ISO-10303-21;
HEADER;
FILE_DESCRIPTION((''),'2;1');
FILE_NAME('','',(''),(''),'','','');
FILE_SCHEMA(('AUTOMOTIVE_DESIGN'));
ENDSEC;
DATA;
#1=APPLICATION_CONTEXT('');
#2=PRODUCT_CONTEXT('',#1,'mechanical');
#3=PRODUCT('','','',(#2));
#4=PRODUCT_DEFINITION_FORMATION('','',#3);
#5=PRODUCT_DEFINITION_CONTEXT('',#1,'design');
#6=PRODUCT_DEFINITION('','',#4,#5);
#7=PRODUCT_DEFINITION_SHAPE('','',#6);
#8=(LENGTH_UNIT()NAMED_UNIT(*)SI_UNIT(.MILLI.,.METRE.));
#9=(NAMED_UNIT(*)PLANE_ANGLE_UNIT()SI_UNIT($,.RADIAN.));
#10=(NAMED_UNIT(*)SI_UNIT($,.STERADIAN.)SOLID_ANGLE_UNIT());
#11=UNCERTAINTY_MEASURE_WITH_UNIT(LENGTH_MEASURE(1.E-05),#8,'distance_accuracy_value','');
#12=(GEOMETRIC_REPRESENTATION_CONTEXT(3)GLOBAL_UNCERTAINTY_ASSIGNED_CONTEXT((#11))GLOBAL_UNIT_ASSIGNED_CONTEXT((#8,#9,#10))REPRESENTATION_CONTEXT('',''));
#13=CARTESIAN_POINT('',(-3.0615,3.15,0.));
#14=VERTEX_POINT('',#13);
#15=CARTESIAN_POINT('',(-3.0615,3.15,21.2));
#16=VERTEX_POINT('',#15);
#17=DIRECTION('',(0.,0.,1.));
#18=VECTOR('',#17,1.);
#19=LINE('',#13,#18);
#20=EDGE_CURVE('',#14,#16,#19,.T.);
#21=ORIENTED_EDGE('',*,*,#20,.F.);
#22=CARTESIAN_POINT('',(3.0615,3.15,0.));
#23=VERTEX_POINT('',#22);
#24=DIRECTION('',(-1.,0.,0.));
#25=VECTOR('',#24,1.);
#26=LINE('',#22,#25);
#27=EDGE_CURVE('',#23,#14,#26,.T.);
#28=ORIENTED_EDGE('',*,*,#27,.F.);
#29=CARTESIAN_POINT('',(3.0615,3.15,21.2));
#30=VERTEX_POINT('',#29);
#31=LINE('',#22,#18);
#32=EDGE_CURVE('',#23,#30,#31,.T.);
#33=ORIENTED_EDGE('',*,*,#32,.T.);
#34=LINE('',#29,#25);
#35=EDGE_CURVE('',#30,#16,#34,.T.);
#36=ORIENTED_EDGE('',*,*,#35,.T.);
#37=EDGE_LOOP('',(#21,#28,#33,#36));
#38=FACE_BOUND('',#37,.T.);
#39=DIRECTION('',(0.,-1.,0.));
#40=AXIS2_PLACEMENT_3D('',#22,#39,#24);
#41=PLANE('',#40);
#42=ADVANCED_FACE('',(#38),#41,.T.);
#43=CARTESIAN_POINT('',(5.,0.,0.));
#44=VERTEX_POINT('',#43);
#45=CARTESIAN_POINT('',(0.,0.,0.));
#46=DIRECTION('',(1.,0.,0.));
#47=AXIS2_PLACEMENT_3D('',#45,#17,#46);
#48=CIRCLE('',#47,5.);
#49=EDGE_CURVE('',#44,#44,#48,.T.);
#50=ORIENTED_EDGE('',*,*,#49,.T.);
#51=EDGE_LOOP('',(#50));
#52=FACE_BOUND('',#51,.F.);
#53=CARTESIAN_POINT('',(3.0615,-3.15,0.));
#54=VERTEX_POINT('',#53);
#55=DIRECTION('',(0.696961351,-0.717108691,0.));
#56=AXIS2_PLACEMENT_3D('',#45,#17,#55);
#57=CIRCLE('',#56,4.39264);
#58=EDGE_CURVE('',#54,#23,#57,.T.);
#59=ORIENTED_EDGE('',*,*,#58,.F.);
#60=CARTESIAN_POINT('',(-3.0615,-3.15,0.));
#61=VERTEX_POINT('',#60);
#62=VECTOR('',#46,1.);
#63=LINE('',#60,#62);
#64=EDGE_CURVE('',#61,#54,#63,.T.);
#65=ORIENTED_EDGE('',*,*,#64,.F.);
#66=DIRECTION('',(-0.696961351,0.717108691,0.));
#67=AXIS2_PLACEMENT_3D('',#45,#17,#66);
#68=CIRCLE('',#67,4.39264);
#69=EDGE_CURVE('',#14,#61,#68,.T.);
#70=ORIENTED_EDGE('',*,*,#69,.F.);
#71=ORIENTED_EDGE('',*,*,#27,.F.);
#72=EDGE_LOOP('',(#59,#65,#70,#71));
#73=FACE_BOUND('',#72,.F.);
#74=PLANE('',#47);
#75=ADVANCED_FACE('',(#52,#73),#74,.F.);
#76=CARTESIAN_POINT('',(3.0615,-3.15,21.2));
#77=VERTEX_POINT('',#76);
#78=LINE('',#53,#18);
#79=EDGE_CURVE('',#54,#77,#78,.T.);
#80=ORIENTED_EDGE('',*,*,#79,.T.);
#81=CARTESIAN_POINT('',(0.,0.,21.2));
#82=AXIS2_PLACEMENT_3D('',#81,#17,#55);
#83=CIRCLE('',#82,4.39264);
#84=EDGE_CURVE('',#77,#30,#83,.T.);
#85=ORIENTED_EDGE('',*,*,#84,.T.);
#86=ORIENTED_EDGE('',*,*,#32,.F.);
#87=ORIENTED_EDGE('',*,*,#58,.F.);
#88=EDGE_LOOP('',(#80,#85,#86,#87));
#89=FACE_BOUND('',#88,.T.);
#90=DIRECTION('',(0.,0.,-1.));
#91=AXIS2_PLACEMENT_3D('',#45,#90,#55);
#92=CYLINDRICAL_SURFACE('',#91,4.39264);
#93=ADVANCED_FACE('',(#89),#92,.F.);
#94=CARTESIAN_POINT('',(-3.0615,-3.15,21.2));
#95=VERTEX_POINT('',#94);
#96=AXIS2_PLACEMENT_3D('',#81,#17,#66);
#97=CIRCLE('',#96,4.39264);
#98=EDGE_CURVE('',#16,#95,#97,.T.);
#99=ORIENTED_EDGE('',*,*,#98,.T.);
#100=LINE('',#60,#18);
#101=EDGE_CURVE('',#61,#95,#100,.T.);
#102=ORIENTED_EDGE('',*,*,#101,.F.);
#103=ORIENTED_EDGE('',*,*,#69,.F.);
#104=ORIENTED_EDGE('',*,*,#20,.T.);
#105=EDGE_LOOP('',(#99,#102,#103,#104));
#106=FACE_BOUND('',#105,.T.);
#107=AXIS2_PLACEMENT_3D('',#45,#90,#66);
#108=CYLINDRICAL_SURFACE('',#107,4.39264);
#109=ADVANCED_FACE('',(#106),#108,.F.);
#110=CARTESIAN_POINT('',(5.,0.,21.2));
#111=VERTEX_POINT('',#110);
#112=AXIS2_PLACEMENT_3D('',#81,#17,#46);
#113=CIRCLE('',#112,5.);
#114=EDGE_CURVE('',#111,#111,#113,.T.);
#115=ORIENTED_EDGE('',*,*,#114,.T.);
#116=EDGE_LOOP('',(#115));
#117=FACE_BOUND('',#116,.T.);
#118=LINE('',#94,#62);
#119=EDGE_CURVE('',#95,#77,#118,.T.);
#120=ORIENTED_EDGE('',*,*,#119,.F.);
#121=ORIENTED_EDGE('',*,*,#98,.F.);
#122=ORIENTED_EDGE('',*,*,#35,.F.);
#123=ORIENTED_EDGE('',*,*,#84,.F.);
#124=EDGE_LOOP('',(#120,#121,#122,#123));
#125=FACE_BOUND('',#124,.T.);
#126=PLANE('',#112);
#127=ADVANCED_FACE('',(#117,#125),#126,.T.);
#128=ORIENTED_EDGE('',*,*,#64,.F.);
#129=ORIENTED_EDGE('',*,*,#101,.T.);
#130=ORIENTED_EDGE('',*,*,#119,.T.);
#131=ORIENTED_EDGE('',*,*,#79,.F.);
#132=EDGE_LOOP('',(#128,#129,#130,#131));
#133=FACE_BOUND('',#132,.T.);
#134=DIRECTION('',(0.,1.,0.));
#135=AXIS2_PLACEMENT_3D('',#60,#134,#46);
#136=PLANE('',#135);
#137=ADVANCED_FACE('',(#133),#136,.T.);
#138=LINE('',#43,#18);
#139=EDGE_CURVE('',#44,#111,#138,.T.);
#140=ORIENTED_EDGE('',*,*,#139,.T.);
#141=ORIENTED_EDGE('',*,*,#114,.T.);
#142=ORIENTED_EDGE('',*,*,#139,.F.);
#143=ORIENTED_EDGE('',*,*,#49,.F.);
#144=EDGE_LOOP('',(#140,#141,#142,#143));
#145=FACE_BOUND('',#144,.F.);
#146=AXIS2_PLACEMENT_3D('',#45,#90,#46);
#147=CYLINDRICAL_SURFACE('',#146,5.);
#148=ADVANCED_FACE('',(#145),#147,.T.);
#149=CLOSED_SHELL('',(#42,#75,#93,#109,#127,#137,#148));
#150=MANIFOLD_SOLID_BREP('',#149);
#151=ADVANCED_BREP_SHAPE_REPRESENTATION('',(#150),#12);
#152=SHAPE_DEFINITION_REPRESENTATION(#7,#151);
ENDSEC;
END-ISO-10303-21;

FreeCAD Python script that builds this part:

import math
import FreeCAD as App
import Part
import Sketcher
from FreeCAD import Vector
Q = App.Units.Quantity

doc = App.newDocument("Part")
body = doc.addObject("PartDesign::Body", "Body")

sketch1 = doc.addObject("Sketcher::SketchObject", "Sketch")
body.addObject(sketch1)
sketch1.AttachmentSupport = (doc.XY_Plane, [""])
sketch1.MapMode = "FlatFace"
sketch1.addGeometry([
    Part.Circle(Vector(0, 0, 0), Vector(0, 0, 1), 5),
    Part.LineSegment(Vector(3.1, -3.1, 0), Vector(-3.1, -3.1, 0)),
    Part.ArcOfCircle(Part.Circle(Vector(0, 0, 0), Vector(0, 0, 1), 4.4), math.radians(134), math.radians(226)),
    Part.LineSegment(Vector(-3.1, 3.1, 0), Vector(3.1, 3.1, 0)),
    Part.ArcOfCircle(Part.Circle(Vector(0, 0, 0), Vector(0, 0, 1), 4.4), math.radians(-46), math.radians(46)),
], False)
sketch1.addConstraint([
    Sketcher.Constraint("Coincident", 1, 2, 2, 2),
    Sketcher.Constraint("Coincident", 2, 1, 3, 1),
    Sketcher.Constraint("Coincident", 3, 2, 4, 2),
    Sketcher.Constraint("Coincident", 4, 1, 1, 1),
    Sketcher.Constraint("Horizontal", 1),
    Sketcher.Constraint("Horizontal", 3),
    Sketcher.Constraint("Coincident", 0, 3, -1, 1),
    Sketcher.Constraint("Coincident", 2, 3, -1, 1),
    Sketcher.Constraint("Coincident", 4, 3, -1, 1),
    Sketcher.Constraint("Equal", 2, 4),
    Sketcher.Constraint("Vertical", 1, 2, 2, 1),
    Sketcher.Constraint("Diameter", 0, Q("10 mm")),
    Sketcher.Constraint("Radius", 2, Q("4.3926 mm")),
    Sketcher.Constraint("DistanceY", 1, 2, 2, 1, Q("6.3 mm")),
])
pad1 = doc.addObject("PartDesign::Pad", "Pad")
body.addObject(pad1)
pad1.Profile = sketch1
pad1.Length = 21.2

doc.recompute()
